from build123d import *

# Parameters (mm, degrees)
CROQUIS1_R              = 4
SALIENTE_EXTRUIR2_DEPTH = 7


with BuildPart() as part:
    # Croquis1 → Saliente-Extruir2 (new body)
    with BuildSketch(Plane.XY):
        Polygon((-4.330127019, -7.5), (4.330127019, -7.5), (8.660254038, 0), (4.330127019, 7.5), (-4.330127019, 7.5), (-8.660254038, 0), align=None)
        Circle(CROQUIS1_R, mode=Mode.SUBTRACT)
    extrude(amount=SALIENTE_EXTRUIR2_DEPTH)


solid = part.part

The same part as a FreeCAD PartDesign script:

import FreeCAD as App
import Part
import Sketcher
from FreeCAD import Vector
Q = App.Units.Quantity


def add_polygon(sketch, points):
    """Adds a closed chain of lines whose ends are joined by coincident constraints."""
    first, n = sketch.GeometryCount, len(points)
    for a, b in zip(points, points[1:] + points[:1]):
        sketch.addGeometry(Part.LineSegment(App.Vector(*a, 0), App.Vector(*b, 0)), False)
    for i in range(n):
        sketch.addConstraint(Sketcher.Constraint("Coincident", first + i, 2, first + (i + 1) % n, 1))

doc = App.newDocument("Part")
body = doc.addObject("PartDesign::Body", "Body")

# Sketch on XY plane
sketch1 = body.newObject("Sketcher::SketchObject", "Sketch")
sketch1.AttachmentSupport = (doc.getObject("XY_Plane"), [""])
sketch1.MapMode = "FlatFace"
add_polygon(sketch1, [(-4.3, -7.5), (4.3, -7.5), (8.7, 0), (4.3, 7.5), (-4.3, 7.5), (-8.7, 0)])  # lines 0-5
sketch1.addGeometry(Part.Circle(Vector(0, 0, 0), Vector(0, 0, 1), 4), False)  # 6
sketch1.addConstraint(Sketcher.Constraint("Horizontal", 0))
sketch1.addConstraint(Sketcher.Constraint("Horizontal", 3))
sketch1.addConstraint(Sketcher.Constraint("Coincident", 6, 3, -1, 1))
sketch1.addConstraint(Sketcher.Constraint("Symmetric", 0, 2, 3, 2, -1, 1))
sketch1.addConstraint(Sketcher.Constraint("Symmetric", 1, 2, 4, 2, -1, 1))
sketch1.addConstraint(Sketcher.Constraint("PointOnObject", 1, 2, -1))
sketch1.addConstraint(Sketcher.Constraint("Parallel", 2, 5))
sketch1.addConstraint(Sketcher.Constraint("Vertical", 0, 2, 2, 2))
sketch1.addConstraint(Sketcher.Constraint("Diameter", 6, Q("8 mm")))
sketch1.addConstraint(Sketcher.Constraint("Angle", 1, Q("60 deg")))
sketch1.addConstraint(Sketcher.Constraint("DistanceY", 0, 2, 2, 2, Q("15 mm")))
sketch1.addConstraint(Sketcher.Constraint("DistanceX", 0, 1, 0, 2, Q("8.660254 mm")))
pad1 = body.newObject("PartDesign::Pad", "Pad")
pad1.Profile = sketch1
pad1.Length = 7

doc.recompute()
